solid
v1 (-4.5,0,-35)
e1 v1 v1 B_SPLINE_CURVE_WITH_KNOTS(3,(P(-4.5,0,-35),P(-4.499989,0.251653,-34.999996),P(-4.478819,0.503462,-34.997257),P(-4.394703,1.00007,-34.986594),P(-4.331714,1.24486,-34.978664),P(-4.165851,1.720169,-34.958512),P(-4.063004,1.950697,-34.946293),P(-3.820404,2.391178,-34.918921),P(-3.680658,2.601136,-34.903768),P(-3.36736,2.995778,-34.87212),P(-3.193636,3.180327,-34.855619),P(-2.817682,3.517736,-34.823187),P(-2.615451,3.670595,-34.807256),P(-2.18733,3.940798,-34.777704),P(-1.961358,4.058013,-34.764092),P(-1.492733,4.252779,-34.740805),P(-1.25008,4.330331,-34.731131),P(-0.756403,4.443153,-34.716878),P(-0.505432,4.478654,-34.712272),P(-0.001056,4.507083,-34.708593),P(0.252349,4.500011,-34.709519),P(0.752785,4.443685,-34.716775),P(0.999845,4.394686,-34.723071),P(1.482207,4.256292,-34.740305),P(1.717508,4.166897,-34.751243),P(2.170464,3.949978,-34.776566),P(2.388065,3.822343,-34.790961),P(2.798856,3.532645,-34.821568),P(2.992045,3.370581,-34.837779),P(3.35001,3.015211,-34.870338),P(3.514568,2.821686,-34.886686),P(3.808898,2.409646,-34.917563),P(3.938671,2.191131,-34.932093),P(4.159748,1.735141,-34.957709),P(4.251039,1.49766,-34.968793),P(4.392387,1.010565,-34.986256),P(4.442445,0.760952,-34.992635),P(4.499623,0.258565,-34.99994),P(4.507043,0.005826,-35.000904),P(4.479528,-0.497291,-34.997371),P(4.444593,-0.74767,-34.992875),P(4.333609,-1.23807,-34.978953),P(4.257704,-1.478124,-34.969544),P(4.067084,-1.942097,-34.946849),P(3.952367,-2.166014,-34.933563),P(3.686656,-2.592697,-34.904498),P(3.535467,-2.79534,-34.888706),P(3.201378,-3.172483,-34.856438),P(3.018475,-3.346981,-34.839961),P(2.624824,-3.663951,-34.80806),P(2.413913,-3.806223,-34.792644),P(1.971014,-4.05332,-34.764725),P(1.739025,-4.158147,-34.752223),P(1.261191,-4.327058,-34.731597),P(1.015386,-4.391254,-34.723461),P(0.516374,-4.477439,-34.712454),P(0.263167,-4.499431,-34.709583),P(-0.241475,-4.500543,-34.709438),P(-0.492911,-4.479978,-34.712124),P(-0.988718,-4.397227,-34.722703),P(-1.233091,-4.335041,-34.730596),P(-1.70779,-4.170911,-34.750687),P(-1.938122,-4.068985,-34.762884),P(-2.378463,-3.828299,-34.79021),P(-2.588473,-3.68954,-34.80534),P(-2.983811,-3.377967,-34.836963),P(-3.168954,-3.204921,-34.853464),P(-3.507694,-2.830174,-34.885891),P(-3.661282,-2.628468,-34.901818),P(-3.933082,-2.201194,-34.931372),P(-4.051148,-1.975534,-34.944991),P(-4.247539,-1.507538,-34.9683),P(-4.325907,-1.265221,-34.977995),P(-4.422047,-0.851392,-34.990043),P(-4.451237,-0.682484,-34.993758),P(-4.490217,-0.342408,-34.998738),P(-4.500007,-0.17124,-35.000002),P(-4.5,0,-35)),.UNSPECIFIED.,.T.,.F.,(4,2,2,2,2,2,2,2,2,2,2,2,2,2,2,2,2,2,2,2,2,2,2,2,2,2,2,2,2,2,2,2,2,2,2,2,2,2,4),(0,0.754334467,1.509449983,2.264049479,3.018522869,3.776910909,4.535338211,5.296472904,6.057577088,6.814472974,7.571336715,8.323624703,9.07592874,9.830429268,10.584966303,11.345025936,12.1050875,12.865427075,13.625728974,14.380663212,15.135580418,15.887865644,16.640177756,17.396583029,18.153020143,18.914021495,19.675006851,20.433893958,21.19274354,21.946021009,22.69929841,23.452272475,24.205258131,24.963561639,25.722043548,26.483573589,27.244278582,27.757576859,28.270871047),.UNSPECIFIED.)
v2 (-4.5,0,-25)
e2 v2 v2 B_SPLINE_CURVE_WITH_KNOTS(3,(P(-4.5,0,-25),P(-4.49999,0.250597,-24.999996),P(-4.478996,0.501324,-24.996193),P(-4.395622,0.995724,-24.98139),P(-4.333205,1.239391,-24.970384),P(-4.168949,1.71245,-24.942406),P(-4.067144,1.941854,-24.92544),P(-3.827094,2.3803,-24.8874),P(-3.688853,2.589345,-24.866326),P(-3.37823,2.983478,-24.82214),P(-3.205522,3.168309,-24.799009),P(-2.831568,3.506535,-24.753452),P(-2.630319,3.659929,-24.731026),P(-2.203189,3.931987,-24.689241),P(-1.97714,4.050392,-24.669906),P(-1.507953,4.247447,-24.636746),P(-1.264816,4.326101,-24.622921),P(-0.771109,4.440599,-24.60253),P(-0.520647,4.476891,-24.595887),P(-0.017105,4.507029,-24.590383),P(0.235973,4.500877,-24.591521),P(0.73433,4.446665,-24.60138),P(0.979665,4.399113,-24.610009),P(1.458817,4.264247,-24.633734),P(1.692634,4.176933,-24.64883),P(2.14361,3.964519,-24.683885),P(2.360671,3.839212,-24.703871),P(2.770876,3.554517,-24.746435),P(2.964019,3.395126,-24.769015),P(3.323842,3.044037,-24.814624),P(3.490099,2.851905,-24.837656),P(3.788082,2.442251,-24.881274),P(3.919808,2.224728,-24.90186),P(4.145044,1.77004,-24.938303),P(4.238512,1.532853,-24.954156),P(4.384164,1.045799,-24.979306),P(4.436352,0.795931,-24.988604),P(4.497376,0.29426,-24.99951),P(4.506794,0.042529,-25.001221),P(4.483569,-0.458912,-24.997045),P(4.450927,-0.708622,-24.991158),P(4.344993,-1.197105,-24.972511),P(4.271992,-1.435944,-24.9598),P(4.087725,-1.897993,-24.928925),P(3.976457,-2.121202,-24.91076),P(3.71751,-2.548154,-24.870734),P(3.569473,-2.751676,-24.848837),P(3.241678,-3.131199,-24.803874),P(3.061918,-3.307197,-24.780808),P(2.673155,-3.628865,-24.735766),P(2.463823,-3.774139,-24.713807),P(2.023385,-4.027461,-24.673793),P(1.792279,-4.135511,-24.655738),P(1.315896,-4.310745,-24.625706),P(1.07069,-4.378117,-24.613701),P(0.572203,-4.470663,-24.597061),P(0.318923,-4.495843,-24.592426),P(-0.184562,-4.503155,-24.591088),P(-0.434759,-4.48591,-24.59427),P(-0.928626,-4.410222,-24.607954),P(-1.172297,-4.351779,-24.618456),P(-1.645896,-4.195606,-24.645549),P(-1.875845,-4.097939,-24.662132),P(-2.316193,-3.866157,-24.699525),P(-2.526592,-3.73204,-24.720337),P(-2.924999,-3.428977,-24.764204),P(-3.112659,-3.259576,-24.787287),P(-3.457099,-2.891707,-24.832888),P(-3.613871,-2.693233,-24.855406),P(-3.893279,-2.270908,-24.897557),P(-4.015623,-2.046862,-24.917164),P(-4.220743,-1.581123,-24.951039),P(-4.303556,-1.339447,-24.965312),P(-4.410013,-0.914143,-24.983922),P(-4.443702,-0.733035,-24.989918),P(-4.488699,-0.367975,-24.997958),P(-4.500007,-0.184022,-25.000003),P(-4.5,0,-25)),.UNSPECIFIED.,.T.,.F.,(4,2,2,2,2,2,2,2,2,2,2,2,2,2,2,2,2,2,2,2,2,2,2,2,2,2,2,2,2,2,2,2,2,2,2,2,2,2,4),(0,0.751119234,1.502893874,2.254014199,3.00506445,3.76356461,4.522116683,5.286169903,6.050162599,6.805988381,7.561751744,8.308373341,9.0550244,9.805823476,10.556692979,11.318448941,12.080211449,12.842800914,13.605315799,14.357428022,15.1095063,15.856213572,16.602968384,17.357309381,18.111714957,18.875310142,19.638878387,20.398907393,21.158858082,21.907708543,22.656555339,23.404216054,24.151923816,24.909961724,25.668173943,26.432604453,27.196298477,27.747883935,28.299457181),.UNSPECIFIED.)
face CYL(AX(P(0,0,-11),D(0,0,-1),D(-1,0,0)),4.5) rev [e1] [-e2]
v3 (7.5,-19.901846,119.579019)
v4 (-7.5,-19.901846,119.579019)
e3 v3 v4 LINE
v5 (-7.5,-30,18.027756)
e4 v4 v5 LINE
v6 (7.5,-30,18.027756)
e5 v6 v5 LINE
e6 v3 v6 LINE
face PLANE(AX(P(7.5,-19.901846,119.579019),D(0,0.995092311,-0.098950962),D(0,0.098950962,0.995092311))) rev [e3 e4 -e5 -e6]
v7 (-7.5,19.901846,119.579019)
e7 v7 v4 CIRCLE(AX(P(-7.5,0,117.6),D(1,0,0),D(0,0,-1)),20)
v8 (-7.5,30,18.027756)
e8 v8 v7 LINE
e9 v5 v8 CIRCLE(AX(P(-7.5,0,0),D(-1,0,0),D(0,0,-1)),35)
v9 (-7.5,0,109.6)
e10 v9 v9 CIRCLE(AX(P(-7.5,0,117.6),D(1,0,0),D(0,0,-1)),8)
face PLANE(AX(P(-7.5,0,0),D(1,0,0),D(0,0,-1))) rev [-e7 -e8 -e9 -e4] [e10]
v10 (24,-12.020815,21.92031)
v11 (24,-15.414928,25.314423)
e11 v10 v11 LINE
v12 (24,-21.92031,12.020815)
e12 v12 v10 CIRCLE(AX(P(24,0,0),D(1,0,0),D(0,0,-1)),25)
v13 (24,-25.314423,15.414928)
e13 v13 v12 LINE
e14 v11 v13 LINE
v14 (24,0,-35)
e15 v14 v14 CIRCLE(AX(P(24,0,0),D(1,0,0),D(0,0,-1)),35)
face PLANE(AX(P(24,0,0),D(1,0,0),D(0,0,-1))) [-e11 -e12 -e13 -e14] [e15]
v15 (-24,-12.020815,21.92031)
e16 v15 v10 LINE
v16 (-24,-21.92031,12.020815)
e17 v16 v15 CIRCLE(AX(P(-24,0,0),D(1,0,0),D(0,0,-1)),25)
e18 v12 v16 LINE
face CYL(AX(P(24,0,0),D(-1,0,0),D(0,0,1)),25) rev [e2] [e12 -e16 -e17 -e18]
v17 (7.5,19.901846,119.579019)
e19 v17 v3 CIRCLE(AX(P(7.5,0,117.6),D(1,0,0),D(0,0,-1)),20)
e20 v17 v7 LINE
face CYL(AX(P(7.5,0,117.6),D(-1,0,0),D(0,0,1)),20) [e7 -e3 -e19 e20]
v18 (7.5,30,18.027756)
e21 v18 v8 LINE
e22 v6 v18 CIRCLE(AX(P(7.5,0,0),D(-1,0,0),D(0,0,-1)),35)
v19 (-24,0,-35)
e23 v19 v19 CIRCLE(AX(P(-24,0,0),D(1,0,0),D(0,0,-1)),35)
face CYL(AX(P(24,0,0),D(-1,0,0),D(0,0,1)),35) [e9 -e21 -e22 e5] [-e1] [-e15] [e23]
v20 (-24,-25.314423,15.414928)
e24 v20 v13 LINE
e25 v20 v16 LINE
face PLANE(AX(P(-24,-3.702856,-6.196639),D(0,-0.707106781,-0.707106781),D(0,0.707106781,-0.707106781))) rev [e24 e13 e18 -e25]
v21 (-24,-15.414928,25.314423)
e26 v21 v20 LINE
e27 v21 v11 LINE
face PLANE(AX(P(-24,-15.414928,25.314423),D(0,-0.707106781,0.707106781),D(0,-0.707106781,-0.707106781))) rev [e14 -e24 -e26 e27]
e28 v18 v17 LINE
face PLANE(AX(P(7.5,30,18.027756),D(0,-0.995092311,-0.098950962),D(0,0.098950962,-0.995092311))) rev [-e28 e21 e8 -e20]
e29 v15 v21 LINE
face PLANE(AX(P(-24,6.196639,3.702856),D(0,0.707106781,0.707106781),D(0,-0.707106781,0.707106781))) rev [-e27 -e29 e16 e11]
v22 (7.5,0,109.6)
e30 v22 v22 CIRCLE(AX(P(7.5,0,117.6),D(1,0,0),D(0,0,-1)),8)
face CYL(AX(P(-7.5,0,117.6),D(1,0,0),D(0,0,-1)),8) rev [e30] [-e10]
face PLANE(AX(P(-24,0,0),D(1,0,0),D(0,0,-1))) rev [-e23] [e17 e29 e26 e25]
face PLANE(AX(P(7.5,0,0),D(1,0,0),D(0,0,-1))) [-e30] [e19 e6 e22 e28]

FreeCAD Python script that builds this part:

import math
import FreeCAD as App
import Part
import Sketcher
from FreeCAD import Vector
Q = App.Units.Quantity


def add_polygon(sketch, points):
    """Adds a closed chain of lines whose ends are joined by coincident constraints."""
    first, n = sketch.GeometryCount, len(points)
    for a, b in zip(points, points[1:] + points[:1]):
        sketch.addGeometry(Part.LineSegment(App.Vector(*a, 0), App.Vector(*b, 0)), False)
    for i in range(n):
        sketch.addConstraint(Sketcher.Constraint("Coincident", first + i, 2, first + (i + 1) % n, 1))

doc = App.newDocument("Part")
body = doc.addObject("PartDesign::Body", "Body")

# Sketch on YZ plane
sketch1 = body.newObject("Sketcher::SketchObject", "Sketch")
sketch1.AttachmentSupport = (doc.getObject("YZ_Plane"), [""])
sketch1.MapMode = "FlatFace"
sketch1.addGeometry(Part.Circle(Vector(0, 0, 0), Vector(0, 0, 1), 35), False)
sketch1.addGeometry(Part.Circle(Vector(0, 0, 0), Vector(0, 0, 1), 25), False)
sketch1.addConstraint(Sketcher.Constraint("Coincident", 0, 3, -1, 1))
sketch1.addConstraint(Sketcher.Constraint("Coincident", 1, 3, -1, 1))
sketch1.addConstraint(Sketcher.Constraint("Diameter", 0, Q("70 mm")))
sketch1.addConstraint(Sketcher.Constraint("Diameter", 1, Q("50 mm")))
pad1 = body.newObject("PartDesign::Pad", "Pad")
pad1.Profile = sketch1
pad1.Length = 48
pad1.Midplane = True

# Sketch on YZ plane
sketch2 = body.newObject("Sketcher::SketchObject", "Sketch001")
sketch2.AttachmentSupport = (doc.getObject("YZ_Plane"), [""])
sketch2.MapMode = "FlatFace"
sketch2.addGeometry(Part.LineSegment(Vector(30, 18, 0), Vector(20, 120, 0)), False)
sketch2.addGeometry(Part.ArcOfCircle(Part.Circle(Vector(0, 118, 0), Vector(0, 0, 1), 20), math.radians(6), math.radians(174)), False)
sketch2.addGeometry(Part.LineSegment(Vector(-20, 120, 0), Vector(-30, 18, 0)), False)
sketch2.addGeometry(Part.ArcOfCircle(Part.Circle(Vector(0, 0, 0), Vector(0, 0, 1), 35), math.radians(31), math.radians(149)), False)
sketch2.addConstraint(Sketcher.Constraint("Tangent", 0, 2, 1, 1))
sketch2.addConstraint(Sketcher.Constraint("Tangent", 1, 2, 2, 1))
sketch2.addConstraint(Sketcher.Constraint("Coincident", 2, 2, 3, 2))
sketch2.addConstraint(Sketcher.Constraint("Coincident", 3, 1, 0, 1))
sketch2.addConstraint(Sketcher.Constraint("Coincident", 3, 3, -1, 1))
sketch2.addConstraint(Sketcher.Constraint("Symmetric", 0, 2, 1, 2, -2))
sketch2.addConstraint(Sketcher.Constraint("Radius", 1, Q("20 mm")))
sketch2.addConstraint(Sketcher.Constraint("Radius", 3, Q("35 mm")))
sketch2.addConstraint(Sketcher.Constraint("DistanceX", 2, 2, -1, 1, Q("30 mm")))
sketch2.addConstraint(Sketcher.Constraint("DistanceY", -1, 1, 1, 3, Q("117.6 mm")))
pad2 = body.newObject("PartDesign::Pad", "Pad001")
pad2.Profile = sketch2
pad2.Length = 15
pad2.Midplane = True

# Sketch on YZ plane
sketch3 = body.newObject("Sketcher::SketchObject", "Sketch002")
sketch3.AttachmentSupport = (doc.getObject("YZ_Plane"), [""])
sketch3.MapMode = "FlatFace"
sketch3.AttachmentOffset = App.Placement(Vector(0, 0, 7.5), App.Rotation())
sketch3.addGeometry(Part.Circle(Vector(0, 118, 0), Vector(0, 0, 1), 8), False)
sketch3.addConstraint(Sketcher.Constraint("PointOnObject", 0, 3, -2))
sketch3.addConstraint(Sketcher.Constraint("Diameter", 0, Q("16 mm")))
sketch3.addConstraint(Sketcher.Constraint("DistanceY", -1, 1, 0, 3, Q("117.6 mm")))
pocket1 = body.newObject("PartDesign::Pocket", "Pocket")
pocket1.Profile = sketch3
pocket1.Length = 15

# Sketch on YZ plane
sketch4 = body.newObject("Sketcher::SketchObject", "Sketch003")
sketch4.AttachmentSupport = (doc.getObject("YZ_Plane"), [""])
sketch4.MapMode = "FlatFace"
sketch4.AttachmentOffset = App.Placement(Vector(0, 0, 24), App.Rotation())
add_polygon(sketch4, [(6, 4), (-15, 25), (-25, 15), (-4, -6)])  # lines 0-3
sketch4.addConstraint(Sketcher.Constraint("Perpendicular", 0, 1))
sketch4.addConstraint(Sketcher.Constraint("Perpendicular", 1, 2))
sketch4.addConstraint(Sketcher.Constraint("Perpendicular", 2, 3))
sketch4.addConstraint(Sketcher.Constraint("Angle", 0, Q("135 deg")))
sketch4.addConstraint(Sketcher.Constraint("Distance", 1, Q("14 mm")))
sketch4.addConstraint(Sketcher.Constraint("Distance", 0, Q("30.563371 mm")))
sketch4.addConstraint(Sketcher.Constraint("DistanceY", 2, 2, -1, 1, Q("6.196639 mm")))
sketch4.addConstraint(Sketcher.Constraint("DistanceX", -1, 1, 3, 2, Q("6.196639 mm")))
pocket2 = body.newObject("PartDesign::Pocket", "Pocket001")
pocket2.Profile = sketch4
pocket2.Type = "ThroughAll"

# Sketch on XY plane
sketch5 = body.newObject("Sketcher::SketchObject", "Sketch004")
sketch5.AttachmentSupport = (doc.getObject("XY_Plane"), [""])
sketch5.MapMode = "FlatFace"
sketch5.AttachmentOffset = App.Placement(Vector(0, 0, -35), App.Rotation())
sketch5.addGeometry(Part.Circle(Vector(0, 0, 0), Vector(0, 0, 1), 4.5), False)
sketch5.addConstraint(Sketcher.Constraint("Coincident", 0, 3, -1, 1))
sketch5.addConstraint(Sketcher.Constraint("Diameter", 0, Q("9 mm")))
pocket3 = body.newObject("PartDesign::Pocket", "Pocket002")
pocket3.Profile = sketch5
pocket3.Length = 24
pocket3.Reversed = True

doc.recompute()
